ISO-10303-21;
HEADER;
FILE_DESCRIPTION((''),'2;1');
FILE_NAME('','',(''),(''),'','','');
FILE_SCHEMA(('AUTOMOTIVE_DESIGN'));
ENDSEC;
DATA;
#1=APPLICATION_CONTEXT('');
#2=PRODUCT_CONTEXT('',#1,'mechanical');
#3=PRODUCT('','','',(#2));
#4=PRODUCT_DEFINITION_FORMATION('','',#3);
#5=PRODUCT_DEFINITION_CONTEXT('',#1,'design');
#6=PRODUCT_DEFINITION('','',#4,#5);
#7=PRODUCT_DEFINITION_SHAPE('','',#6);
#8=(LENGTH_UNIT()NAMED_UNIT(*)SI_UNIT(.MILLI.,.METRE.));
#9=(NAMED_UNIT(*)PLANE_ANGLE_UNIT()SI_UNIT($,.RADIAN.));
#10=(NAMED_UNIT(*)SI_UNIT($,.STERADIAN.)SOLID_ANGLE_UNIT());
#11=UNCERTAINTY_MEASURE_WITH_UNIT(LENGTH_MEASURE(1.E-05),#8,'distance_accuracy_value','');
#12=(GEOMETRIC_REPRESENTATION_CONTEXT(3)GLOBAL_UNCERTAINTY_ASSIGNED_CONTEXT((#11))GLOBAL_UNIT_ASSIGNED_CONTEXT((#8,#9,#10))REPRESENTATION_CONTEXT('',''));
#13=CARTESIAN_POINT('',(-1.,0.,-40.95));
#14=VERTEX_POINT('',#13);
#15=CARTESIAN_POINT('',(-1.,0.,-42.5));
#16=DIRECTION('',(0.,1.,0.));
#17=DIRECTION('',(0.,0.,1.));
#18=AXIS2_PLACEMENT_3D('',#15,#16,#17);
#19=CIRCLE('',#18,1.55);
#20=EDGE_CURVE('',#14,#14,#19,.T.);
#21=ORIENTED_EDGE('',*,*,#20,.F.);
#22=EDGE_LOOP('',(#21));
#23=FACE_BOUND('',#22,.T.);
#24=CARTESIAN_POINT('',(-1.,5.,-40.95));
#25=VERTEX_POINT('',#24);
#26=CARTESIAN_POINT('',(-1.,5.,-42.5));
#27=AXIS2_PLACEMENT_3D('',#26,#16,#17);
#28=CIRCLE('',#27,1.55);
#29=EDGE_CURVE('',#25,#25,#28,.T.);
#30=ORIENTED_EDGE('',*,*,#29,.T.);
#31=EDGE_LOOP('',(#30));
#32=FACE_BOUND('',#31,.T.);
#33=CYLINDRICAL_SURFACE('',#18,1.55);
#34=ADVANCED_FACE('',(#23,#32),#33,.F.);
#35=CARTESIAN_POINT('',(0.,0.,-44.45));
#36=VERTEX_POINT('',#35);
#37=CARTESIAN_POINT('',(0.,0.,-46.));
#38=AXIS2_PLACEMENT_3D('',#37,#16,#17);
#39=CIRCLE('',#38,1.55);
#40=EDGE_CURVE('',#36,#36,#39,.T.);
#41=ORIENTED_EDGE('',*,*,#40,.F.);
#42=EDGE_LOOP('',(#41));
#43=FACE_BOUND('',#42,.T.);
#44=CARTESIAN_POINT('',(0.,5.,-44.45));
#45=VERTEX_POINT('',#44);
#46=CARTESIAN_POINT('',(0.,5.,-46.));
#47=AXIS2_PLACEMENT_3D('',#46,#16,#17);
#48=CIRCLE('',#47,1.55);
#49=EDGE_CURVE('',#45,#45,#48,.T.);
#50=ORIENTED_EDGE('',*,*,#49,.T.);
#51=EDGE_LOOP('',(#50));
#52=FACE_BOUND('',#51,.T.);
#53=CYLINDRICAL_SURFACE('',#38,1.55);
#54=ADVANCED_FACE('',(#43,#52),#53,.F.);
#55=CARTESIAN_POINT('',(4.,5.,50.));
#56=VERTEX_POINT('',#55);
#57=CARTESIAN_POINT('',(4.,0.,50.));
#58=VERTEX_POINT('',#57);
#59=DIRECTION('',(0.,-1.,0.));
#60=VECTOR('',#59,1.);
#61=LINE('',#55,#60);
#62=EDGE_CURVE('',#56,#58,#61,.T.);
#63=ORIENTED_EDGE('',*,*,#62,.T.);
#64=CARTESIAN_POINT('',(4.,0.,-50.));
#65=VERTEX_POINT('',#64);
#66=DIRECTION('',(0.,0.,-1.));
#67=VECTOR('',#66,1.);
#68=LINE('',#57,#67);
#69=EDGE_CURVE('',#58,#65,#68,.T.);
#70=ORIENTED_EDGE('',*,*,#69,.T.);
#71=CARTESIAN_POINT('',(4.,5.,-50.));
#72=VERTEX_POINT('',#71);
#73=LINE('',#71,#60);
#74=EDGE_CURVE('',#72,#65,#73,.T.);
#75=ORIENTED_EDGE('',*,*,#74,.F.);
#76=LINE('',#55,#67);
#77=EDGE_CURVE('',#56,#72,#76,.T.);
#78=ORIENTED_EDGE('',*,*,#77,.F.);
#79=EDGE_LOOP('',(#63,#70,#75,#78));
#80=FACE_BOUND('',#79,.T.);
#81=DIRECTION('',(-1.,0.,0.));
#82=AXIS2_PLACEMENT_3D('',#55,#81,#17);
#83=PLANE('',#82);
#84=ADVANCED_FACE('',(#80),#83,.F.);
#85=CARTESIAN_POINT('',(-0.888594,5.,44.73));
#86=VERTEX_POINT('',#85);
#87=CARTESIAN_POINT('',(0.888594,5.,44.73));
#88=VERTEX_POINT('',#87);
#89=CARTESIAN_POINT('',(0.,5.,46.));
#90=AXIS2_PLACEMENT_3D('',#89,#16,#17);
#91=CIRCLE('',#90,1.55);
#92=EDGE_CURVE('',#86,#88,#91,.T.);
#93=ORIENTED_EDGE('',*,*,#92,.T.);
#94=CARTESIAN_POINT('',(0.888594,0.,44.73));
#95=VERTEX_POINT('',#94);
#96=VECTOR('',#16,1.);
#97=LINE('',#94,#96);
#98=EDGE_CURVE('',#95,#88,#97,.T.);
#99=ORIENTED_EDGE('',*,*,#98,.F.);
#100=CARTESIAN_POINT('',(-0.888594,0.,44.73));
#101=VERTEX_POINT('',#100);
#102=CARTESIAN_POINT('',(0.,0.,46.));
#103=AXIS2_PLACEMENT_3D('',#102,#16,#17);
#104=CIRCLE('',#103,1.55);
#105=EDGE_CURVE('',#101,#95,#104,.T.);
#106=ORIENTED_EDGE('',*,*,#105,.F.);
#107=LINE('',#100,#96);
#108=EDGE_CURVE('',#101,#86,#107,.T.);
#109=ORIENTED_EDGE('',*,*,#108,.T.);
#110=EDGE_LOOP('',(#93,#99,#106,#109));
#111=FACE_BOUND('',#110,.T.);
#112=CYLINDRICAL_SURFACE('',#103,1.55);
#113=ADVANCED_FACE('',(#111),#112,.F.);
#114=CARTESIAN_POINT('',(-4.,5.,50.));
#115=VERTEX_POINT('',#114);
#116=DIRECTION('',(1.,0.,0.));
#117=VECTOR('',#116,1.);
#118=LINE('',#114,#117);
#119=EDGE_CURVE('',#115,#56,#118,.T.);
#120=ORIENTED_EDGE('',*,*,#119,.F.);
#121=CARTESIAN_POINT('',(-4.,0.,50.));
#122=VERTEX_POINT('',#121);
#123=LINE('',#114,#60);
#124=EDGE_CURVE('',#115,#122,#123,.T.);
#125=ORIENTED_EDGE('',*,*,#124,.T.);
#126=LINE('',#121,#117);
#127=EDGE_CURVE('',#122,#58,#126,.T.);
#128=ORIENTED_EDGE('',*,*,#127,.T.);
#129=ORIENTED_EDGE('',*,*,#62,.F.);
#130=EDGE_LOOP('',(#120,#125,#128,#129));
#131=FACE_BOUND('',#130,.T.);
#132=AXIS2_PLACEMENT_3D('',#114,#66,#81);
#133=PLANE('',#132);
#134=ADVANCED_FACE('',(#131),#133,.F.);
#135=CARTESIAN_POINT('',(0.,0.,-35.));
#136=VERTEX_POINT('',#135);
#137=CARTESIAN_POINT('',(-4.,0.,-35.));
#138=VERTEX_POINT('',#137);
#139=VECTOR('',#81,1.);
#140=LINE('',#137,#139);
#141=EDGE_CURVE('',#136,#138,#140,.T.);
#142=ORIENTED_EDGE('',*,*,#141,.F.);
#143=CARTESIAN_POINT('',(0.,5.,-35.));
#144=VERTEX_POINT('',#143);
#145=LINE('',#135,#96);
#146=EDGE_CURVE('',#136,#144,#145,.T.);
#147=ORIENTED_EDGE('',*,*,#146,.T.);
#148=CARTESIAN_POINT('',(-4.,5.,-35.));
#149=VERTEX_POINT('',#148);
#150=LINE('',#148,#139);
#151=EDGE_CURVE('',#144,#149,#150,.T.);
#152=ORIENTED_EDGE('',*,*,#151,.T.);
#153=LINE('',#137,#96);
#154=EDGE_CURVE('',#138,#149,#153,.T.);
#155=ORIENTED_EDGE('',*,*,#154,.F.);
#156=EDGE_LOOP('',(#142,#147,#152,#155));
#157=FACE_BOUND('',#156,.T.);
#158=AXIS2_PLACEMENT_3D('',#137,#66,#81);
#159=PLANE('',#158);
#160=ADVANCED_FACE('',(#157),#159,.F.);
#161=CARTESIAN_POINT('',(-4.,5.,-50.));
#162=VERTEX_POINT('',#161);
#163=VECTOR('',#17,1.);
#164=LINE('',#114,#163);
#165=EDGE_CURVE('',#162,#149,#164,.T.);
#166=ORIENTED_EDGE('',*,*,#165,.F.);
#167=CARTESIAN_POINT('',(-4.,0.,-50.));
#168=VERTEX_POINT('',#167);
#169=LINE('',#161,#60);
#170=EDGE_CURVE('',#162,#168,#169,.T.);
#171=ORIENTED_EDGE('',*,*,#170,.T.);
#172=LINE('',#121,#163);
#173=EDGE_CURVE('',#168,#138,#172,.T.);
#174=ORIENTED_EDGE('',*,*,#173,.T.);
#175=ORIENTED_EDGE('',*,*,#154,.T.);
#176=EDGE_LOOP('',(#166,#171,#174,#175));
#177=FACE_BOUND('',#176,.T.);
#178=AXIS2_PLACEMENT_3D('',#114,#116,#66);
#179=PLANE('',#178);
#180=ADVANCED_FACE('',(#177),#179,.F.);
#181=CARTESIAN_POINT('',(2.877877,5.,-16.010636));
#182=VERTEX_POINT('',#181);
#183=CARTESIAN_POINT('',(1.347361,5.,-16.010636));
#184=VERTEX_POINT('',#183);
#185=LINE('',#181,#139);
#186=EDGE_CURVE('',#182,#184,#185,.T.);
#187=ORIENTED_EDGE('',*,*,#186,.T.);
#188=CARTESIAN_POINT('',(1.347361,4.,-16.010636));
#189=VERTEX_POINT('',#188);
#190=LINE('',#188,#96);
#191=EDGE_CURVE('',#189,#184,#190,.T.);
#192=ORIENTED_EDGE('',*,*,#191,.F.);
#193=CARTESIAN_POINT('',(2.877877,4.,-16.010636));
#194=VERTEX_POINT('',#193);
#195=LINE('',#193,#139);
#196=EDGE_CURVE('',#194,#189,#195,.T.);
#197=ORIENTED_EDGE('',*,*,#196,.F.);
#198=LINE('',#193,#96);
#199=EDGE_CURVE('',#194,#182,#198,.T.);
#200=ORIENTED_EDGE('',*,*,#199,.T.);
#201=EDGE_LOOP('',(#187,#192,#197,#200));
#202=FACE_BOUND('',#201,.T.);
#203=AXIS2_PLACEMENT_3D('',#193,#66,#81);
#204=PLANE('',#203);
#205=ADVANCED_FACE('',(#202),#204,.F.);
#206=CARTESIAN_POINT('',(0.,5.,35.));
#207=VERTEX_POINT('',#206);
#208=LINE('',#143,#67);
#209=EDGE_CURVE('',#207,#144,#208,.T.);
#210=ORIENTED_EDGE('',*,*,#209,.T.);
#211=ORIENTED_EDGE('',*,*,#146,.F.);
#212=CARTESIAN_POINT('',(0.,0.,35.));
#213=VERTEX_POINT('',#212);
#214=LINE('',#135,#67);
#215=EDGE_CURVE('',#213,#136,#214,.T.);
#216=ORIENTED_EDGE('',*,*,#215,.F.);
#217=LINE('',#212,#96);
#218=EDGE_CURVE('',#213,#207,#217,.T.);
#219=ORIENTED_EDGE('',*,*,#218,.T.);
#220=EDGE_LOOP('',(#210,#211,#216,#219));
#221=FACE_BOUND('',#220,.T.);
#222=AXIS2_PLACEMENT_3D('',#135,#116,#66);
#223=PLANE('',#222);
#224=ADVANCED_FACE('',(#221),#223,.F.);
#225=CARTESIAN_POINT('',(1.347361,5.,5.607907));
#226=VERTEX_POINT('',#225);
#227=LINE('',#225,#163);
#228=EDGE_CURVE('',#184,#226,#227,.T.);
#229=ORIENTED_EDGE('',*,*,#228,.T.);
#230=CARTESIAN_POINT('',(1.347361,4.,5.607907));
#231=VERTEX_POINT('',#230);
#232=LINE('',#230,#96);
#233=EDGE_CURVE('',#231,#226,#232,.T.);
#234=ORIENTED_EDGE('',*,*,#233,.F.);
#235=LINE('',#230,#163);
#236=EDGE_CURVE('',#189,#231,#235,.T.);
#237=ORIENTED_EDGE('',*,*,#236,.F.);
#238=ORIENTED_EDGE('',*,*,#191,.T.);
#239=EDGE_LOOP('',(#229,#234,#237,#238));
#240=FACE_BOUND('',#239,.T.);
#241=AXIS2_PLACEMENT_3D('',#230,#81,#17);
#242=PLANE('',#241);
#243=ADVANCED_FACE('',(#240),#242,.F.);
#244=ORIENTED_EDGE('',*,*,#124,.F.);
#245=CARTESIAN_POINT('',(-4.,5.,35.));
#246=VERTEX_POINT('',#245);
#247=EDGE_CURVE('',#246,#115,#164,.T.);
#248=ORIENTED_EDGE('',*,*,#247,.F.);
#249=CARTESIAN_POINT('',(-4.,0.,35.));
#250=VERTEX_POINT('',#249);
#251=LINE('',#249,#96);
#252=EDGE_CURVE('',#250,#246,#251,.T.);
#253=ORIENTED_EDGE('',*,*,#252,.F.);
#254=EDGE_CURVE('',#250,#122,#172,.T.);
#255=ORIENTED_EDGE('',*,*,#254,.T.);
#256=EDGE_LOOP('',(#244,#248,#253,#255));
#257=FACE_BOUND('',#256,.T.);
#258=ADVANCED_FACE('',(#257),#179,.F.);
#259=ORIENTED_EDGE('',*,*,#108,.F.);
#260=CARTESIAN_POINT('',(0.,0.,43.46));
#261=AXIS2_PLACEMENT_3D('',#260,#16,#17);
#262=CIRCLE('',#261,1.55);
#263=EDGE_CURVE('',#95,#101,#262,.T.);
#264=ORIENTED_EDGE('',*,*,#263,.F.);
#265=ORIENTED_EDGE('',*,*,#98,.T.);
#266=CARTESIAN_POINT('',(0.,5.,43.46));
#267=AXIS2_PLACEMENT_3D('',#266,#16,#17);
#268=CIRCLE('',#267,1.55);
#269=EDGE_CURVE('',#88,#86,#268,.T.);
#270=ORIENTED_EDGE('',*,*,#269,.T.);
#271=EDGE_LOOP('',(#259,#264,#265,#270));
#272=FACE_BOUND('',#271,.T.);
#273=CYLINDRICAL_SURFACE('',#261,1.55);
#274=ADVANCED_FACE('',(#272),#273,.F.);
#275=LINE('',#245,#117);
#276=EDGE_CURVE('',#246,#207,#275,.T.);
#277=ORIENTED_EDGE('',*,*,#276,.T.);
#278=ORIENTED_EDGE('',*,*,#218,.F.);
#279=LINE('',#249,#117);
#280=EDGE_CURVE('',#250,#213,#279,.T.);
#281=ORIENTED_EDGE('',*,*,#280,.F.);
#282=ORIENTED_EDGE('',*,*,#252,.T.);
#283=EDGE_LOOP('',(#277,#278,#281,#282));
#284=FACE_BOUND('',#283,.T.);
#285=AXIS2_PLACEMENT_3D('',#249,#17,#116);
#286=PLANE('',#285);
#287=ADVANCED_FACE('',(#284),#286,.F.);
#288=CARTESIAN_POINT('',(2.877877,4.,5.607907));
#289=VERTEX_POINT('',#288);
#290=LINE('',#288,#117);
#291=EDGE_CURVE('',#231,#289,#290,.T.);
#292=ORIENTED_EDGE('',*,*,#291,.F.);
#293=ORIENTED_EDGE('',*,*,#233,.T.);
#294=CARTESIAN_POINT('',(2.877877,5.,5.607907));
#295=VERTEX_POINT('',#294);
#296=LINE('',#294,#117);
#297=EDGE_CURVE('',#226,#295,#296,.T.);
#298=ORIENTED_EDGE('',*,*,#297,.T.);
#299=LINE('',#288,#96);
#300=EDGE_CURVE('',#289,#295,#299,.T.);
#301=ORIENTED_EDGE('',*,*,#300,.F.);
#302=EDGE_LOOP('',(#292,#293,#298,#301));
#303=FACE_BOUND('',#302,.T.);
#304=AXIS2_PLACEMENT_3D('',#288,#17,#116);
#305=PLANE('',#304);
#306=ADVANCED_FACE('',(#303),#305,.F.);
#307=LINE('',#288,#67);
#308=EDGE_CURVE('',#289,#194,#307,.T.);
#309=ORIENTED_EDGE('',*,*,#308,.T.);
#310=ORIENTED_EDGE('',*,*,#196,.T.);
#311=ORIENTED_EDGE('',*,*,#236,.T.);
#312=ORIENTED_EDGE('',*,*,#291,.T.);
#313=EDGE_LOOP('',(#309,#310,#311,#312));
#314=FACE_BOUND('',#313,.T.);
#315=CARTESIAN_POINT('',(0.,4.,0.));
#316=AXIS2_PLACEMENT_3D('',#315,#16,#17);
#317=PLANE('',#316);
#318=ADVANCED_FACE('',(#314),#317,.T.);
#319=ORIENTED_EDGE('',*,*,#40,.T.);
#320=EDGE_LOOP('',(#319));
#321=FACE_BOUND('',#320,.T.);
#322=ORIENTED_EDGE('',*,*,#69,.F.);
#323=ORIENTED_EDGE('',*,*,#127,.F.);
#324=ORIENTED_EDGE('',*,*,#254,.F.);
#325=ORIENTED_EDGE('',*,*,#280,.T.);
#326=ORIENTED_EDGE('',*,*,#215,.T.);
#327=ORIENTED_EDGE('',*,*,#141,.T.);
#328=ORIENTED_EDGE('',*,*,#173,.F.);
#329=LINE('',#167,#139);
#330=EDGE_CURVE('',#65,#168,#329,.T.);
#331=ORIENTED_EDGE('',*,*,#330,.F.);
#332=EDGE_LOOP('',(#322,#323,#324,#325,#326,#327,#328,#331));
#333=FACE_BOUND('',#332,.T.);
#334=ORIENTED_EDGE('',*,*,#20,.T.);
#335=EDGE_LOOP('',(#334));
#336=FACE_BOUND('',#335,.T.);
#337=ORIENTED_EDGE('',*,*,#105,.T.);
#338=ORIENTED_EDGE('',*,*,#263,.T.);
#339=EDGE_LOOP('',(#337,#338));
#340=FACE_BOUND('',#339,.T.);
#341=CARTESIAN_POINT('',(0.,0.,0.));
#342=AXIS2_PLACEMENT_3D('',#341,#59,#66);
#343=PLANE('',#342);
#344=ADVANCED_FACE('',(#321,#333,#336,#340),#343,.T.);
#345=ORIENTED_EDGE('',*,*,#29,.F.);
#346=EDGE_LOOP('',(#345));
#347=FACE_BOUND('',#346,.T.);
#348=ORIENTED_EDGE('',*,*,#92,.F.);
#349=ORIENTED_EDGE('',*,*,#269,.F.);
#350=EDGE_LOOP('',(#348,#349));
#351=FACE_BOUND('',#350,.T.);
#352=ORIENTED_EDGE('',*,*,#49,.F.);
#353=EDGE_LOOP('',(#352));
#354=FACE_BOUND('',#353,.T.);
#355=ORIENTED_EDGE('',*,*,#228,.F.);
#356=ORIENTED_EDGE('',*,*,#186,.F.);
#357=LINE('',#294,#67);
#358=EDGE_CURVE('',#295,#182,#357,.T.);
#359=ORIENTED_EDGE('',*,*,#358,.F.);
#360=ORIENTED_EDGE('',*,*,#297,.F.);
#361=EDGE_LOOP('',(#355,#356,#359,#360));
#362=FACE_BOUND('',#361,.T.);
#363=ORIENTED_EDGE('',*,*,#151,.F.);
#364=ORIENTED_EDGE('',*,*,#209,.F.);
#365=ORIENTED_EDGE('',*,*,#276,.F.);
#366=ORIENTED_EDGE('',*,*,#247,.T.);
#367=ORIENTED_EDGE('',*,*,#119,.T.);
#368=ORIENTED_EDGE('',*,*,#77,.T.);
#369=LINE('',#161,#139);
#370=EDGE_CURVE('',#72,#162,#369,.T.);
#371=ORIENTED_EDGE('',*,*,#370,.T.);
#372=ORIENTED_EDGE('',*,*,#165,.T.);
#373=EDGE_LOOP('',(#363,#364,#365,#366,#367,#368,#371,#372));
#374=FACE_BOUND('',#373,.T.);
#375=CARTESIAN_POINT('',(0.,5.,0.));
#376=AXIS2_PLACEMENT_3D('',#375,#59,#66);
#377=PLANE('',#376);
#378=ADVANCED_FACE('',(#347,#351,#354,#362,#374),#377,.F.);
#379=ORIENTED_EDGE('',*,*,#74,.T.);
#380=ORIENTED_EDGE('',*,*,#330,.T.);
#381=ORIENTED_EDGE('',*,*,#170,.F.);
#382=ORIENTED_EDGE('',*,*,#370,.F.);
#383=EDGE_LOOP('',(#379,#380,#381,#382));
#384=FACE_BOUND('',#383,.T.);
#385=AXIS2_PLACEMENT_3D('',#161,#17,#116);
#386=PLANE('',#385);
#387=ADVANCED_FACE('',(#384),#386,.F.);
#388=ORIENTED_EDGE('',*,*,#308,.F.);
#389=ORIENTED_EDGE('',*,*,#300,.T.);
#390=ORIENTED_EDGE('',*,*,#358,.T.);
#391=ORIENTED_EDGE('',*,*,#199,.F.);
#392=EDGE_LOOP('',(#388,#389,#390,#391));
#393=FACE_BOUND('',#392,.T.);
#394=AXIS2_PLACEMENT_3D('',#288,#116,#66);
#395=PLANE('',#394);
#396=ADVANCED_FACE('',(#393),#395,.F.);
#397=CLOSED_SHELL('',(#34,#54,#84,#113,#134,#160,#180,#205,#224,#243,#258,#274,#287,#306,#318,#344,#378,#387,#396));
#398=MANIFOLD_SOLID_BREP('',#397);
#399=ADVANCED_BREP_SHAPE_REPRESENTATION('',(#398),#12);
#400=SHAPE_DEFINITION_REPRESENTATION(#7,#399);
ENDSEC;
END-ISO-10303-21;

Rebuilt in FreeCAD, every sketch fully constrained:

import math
import FreeCAD as App
import Part
import Sketcher

V = App.Vector


def add_polygon(sketch, points):
    """Adds a closed chain of lines whose ends are joined by coincident constraints."""
    first, n = sketch.GeometryCount, len(points)
    for a, b in zip(points, points[1:] + points[:1]):
        sketch.addGeometry(Part.LineSegment(App.Vector(*a, 0), App.Vector(*b, 0)), False)
    for i in range(n):
        sketch.addConstraint(Sketcher.Constraint("Coincident", first + i, 2, first + (i + 1) % n, 1))

doc = App.newDocument("Part")
body = doc.addObject("PartDesign::Body", "Body")

sketch1 = body.newObject("Sketcher::SketchObject", "Sketch")
sketch1.AttachmentSupport = (doc.getObject("XZ_Plane"), [""])
sketch1.MapMode = "FlatFace"
add_polygon(sketch1, [(-4, -50), (-4, 50), (4, 50), (4, -50)])
sketch1.addConstraint([
    Sketcher.Constraint("Vertical", 0),
    Sketcher.Constraint("Horizontal", 1),
    Sketcher.Constraint("Vertical", 2),
    Sketcher.Constraint("Horizontal", 3),
    Sketcher.Constraint("Symmetric", 0, 2, 2, 2, -1, 1),
    Sketcher.Constraint("DistanceX", 1, 1, 1, 2, 8.0),
    Sketcher.Constraint("DistanceY", 0, 1, 0, 2, 100.0),
])
pad1 = body.newObject("PartDesign::Pad", "Pad")
pad1.Profile = sketch1
pad1.Length = 5
pad1.Reversed = True

sketch2 = body.newObject("Sketcher::SketchObject", "Sketch001")
sketch2.AttachmentSupport = (doc.getObject("XZ_Plane"), [""])
sketch2.MapMode = "FlatFace"
sketch2.AttachmentOffset = App.Placement(V(0, 0, -5), App.Rotation())
sketch2.addGeometry(Part.Circle(V(0, 46, 0), V(0, 0, 1), 1.55), False)
sketch2.addConstraint([
    Sketcher.Constraint("PointOnObject", 0, 3, -2),
    Sketcher.Constraint("Diameter", 0, 3.1),
    Sketcher.Constraint("DistanceY", -1, 1, 0, 3, 46.0),
])
pocket1 = body.newObject("PartDesign::Pocket", "Pocket")
pocket1.Profile = sketch2
pocket1.Length = 5
pocket1.Reversed = True

sketch3 = body.newObject("Sketcher::SketchObject", "Sketch002")
sketch3.AttachmentSupport = (doc.getObject("XZ_Plane"), [""])
sketch3.MapMode = "FlatFace"
sketch3.AttachmentOffset = App.Placement(V(0, 0, -5), App.Rotation())
sketch3.addGeometry([
    Part.ArcOfCircle(Part.Circle(V(0, 43.46, 0), V(0, 0, 1), 1.55), math.radians(124.979737), math.radians(415.020263)),
    Part.ArcOfCircle(Part.Circle(V(0, 46, 0), V(0, 0, 1), 1.55), math.radians(-55.020263), math.radians(235.020263)),
    Part.Circle(V(-1, -42.5, 0), V(0, 0, 1), 1.55),
    Part.Circle(V(0, -46, 0), V(0, 0, 1), 1.55),
], False)
sketch3.addConstraint([
    Sketcher.Constraint("Coincident", 0, 1, 1, 2),
    Sketcher.Constraint("Coincident", 1, 1, 0, 2),
    Sketcher.Constraint("Equal", 0, 1),
    Sketcher.Constraint("Equal", 1, 2),
    Sketcher.Constraint("Equal", 2, 3),
    Sketcher.Constraint("Symmetric", 1, 3, 3, 3, -1, 1),
    Sketcher.Constraint("Symmetric", 0, 1, 1, 1, -2),
    Sketcher.Constraint("Diameter", 2, 3.1),
    Sketcher.Constraint("DistanceY", -1, 1, 1, 3, 46.0),
    Sketcher.Constraint("DistanceX", 2, 3, -1, 1, 1.0),
    Sketcher.Constraint("DistanceY", 2, 3, -1, 1, 42.5),
    Sketcher.Constraint("DistanceY", -1, 1, 0, 3, 43.46),
])
pocket2 = body.newObject("PartDesign::Pocket", "Pocket001")
pocket2.Profile = sketch3
pocket2.Length = 5
pocket2.Reversed = True

sketch4 = body.newObject("Sketcher::SketchObject", "Sketch003")
sketch4.AttachmentSupport = (doc.getObject("XZ_Plane"), [""])
sketch4.MapMode = "FlatFace"
sketch4.AttachmentOffset = App.Placement(V(0, 0, -5), App.Rotation())
add_polygon(sketch4, [(-4, -35), (-4, 35), (0, 35), (0, -35)])
sketch4.addConstraint([
    Sketcher.Constraint("Vertical", 0),
    Sketcher.Constraint("Horizontal", 1),
    Sketcher.Constraint("Vertical", 2),
    Sketcher.Constraint("Horizontal", 3),
    Sketcher.Constraint("Symmetric", 1, 2, 2, 2, -1, 1),
    Sketcher.Constraint("DistanceX", 1, 1, 1, 2, 4.0),
    Sketcher.Constraint("DistanceY", 0, 1, 0, 2, 70.0),
])
pocket3 = body.newObject("PartDesign::Pocket", "Pocket002")
pocket3.Profile = sketch4
pocket3.Length = 5
pocket3.Reversed = True

sketch5 = body.newObject("Sketcher::SketchObject", "Sketch004")
sketch5.AttachmentSupport = (doc.getObject("XZ_Plane"), [""])
sketch5.MapMode = "FlatFace"
sketch5.AttachmentOffset = App.Placement(V(0, 0, -5), App.Rotation())
add_polygon(sketch5, [(1.347361, -16.010636), (1.347361, 5.607907), (2.877877, 5.607907), (2.877877, -16.010636)])
sketch5.addConstraint([
    Sketcher.Constraint("Vertical", 0),
    Sketcher.Constraint("Horizontal", 1),
    Sketcher.Constraint("Vertical", 2),
    Sketcher.Constraint("Horizontal", 3),
    Sketcher.Constraint("DistanceX", 1, 1, 1, 2, 1.530516),
    Sketcher.Constraint("DistanceY", 0, 1, 0, 2, 21.618544),
    Sketcher.Constraint("DistanceX", -1, 1, 0, 2, 1.347361),
    Sketcher.Constraint("DistanceY", -1, 1, 0, 2, 5.607907),
])
pocket4 = body.newObject("PartDesign::Pocket", "Pocket003")
pocket4.Profile = sketch5
pocket4.Length = 1
pocket4.Reversed = True

doc.recompute()
